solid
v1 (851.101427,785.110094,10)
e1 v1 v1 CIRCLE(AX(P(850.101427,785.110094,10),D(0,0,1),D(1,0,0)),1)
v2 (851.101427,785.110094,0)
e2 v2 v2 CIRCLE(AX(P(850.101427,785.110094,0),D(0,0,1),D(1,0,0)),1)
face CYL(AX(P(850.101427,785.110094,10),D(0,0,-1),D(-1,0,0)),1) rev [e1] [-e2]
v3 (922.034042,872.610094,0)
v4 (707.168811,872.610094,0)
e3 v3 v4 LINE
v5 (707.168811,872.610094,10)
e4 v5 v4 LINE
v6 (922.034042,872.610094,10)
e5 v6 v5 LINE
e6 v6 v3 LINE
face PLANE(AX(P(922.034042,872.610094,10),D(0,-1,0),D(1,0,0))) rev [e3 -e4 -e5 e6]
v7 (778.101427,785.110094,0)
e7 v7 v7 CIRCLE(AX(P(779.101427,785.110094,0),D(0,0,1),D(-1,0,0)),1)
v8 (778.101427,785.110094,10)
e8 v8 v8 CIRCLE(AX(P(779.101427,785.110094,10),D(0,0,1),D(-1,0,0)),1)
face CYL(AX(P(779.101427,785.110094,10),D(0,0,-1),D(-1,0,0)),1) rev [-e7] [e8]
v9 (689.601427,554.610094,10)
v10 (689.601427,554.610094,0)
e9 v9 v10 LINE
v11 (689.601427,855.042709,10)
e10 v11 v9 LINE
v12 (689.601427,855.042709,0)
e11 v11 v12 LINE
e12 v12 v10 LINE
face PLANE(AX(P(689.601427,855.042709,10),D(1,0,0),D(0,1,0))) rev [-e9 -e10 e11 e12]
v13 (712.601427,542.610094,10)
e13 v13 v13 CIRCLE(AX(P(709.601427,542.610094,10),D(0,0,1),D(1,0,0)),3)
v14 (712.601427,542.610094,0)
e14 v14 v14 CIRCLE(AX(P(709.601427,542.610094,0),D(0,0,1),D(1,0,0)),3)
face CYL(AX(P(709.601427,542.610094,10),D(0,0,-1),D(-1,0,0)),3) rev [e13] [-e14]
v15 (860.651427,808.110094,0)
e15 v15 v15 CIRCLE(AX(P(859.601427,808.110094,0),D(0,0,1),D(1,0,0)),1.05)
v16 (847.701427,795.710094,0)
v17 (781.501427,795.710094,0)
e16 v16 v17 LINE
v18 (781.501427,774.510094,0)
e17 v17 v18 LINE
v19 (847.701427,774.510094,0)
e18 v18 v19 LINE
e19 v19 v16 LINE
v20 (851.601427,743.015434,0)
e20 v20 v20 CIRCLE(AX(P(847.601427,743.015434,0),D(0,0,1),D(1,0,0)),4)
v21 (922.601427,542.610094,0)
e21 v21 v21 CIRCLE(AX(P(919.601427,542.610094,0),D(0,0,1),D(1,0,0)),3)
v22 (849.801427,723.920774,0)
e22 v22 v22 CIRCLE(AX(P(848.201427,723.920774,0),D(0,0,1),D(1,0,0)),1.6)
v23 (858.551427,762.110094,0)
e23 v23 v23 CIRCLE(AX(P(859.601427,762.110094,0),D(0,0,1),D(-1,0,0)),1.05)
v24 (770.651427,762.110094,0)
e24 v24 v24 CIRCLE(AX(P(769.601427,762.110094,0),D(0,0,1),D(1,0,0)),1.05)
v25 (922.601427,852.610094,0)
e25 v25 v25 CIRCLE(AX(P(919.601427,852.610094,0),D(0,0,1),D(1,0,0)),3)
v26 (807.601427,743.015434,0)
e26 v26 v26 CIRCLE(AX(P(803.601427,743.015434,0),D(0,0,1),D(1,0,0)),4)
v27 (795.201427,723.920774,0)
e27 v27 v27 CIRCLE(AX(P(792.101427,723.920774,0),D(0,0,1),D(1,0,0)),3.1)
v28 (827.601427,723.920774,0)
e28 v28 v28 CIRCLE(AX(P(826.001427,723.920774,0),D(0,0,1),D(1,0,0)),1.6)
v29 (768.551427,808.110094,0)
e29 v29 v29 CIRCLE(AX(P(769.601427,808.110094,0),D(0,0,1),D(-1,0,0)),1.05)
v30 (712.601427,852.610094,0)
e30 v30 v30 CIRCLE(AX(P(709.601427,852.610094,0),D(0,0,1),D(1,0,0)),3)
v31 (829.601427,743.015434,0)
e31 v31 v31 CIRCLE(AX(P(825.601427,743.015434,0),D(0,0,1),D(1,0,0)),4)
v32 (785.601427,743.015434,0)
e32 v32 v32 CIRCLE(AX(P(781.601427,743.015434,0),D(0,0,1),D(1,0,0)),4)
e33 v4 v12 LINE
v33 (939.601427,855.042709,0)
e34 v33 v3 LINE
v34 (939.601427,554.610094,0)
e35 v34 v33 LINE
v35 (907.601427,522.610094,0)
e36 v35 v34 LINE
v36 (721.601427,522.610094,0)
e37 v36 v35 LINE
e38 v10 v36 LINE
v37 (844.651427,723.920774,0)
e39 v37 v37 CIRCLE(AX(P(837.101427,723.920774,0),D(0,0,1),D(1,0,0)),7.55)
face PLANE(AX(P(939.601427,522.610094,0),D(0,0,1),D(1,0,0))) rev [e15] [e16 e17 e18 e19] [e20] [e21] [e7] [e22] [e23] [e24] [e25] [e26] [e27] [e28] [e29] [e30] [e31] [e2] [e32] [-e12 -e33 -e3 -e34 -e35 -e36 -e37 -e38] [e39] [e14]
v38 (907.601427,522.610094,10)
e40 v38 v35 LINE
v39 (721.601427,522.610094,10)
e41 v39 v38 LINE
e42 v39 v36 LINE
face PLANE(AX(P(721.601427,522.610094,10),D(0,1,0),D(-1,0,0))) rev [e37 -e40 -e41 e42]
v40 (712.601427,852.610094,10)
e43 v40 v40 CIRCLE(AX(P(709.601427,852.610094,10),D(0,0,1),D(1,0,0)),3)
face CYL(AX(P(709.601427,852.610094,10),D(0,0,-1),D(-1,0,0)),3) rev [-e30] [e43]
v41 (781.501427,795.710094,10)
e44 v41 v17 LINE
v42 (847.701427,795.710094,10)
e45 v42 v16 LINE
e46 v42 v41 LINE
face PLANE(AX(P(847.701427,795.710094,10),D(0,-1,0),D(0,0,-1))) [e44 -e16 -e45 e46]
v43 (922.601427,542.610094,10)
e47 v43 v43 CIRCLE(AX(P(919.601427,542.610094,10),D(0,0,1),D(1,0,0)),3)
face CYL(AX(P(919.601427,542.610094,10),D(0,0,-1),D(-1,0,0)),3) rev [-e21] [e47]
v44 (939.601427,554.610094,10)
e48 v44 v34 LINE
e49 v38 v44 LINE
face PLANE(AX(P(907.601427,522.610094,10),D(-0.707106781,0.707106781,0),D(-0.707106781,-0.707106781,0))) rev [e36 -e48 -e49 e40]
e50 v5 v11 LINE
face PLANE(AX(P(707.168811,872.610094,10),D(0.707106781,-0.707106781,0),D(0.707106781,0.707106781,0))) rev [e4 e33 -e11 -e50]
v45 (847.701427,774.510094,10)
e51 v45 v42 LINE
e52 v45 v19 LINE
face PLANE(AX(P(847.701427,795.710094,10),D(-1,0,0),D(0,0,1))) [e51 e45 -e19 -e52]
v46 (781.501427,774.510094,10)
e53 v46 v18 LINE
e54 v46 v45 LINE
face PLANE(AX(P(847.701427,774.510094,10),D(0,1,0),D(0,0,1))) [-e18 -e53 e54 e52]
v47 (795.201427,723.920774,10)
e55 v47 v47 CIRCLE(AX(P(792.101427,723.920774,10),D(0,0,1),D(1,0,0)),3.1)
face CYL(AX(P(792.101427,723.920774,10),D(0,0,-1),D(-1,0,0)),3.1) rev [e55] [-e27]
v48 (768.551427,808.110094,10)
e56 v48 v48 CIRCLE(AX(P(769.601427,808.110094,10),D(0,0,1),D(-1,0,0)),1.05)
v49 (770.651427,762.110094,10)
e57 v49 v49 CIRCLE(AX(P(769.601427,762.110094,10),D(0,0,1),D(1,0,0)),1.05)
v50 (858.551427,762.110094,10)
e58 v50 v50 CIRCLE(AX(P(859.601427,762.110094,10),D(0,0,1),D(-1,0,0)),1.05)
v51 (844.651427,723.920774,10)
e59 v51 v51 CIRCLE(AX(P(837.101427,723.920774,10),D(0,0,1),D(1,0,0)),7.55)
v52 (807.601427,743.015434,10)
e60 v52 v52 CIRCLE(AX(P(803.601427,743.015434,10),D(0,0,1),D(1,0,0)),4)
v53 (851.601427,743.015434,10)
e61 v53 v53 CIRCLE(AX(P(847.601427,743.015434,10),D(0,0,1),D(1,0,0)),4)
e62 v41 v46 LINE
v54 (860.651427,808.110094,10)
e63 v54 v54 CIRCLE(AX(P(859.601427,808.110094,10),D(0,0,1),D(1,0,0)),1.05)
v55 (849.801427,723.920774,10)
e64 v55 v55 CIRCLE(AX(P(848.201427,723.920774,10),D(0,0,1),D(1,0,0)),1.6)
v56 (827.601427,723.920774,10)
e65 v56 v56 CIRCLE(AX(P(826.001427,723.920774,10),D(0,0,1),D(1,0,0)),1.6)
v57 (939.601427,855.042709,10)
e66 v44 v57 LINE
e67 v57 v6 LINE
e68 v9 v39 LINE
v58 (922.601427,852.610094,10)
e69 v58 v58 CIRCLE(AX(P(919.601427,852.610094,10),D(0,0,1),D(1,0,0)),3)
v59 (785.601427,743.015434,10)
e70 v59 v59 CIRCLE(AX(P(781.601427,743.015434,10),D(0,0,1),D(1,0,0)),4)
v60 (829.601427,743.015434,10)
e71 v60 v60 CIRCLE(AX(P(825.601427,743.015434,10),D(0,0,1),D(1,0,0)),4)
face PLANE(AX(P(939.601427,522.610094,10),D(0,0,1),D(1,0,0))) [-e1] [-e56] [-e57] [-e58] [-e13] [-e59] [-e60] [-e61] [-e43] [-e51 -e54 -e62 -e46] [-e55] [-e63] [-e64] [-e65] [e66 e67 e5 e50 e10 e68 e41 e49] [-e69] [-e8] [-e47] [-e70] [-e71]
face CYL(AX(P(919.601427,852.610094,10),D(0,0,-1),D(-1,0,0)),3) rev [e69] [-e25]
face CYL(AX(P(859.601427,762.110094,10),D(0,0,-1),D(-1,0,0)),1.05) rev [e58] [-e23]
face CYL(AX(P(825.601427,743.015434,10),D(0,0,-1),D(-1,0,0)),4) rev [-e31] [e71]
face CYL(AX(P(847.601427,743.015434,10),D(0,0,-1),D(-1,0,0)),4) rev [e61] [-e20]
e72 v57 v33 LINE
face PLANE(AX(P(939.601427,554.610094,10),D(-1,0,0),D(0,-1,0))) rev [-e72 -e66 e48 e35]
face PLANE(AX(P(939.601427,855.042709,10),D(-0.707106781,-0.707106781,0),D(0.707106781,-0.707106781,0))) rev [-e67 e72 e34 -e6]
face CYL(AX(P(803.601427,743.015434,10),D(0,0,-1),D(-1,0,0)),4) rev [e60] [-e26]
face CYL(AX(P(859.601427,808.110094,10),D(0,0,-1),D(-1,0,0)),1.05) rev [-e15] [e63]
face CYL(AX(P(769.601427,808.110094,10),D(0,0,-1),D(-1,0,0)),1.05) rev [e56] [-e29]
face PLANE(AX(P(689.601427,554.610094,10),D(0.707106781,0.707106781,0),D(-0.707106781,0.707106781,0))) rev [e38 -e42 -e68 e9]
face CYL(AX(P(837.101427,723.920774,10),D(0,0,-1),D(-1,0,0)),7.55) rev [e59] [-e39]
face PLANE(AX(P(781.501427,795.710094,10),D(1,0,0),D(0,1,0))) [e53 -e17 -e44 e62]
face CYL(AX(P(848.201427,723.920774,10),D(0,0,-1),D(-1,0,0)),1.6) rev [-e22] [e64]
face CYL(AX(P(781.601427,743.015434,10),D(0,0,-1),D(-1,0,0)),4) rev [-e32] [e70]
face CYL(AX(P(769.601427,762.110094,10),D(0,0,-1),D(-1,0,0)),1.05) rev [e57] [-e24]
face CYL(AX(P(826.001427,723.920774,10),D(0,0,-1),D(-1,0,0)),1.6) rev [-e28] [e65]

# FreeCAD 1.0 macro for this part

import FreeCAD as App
import Part
import Sketcher

V = App.Vector
Q = App.Units.Quantity


def add_polygon(sketch, points):
    """Adds a closed chain of lines whose ends are joined by coincident constraints."""
    first, n = sketch.GeometryCount, len(points)
    for a, b in zip(points, points[1:] + points[:1]):
        sketch.addGeometry(Part.LineSegment(App.Vector(*a, 0), App.Vector(*b, 0)), False)
    for i in range(n):
        sketch.addConstraint(Sketcher.Constraint("Coincident", first + i, 2, first + (i + 1) % n, 1))

doc = App.newDocument("Part")
body = doc.addObject("PartDesign::Body", "Body")

# Sketch on XY plane
sketch1 = body.newObject("Sketcher::SketchObject", "Sketch")
sketch1.AttachmentSupport = (doc.getObject("XY_Plane"), [""])
sketch1.MapMode = "FlatFace"
add_polygon(sketch1, [(907.6, 522.6), (939.6, 554.6), (939.6, 855), (922, 872.6), (707.2, 872.6), (689.6, 855), (689.6, 554.6), (721.6, 522.6)])  # lines 0-7
sketch1.addGeometry(Part.Circle(V(709.6, 542.6, 0), V(0, 0, 1), 3), False)  # 8
sketch1.addGeometry(Part.Circle(V(919.6, 542.6, 0), V(0, 0, 1), 3), False)  # 9
sketch1.addGeometry(Part.Circle(V(792.1, 723.9, 0), V(0, 0, 1), 3.1), False)  # 10
sketch1.addGeometry(Part.Circle(V(781.6, 743, 0), V(0, 0, 1), 4), False)  # 11
sketch1.addGeometry(Part.Circle(V(769.6, 762.1, 0), V(0, 0, 1), 1.1), False)  # 12
sketch1.addGeometry(Part.Circle(V(803.6, 743, 0), V(0, 0, 1), 4), False)  # 13
sketch1.addGeometry(Part.Circle(V(709.6, 852.6, 0), V(0, 0, 1), 3), False)  # 14
sketch1.addGeometry(Part.Circle(V(779.1, 785.1, 0), V(0, 0, 1), 1), False)  # 15
sketch1.addGeometry(Part.Circle(V(769.6, 808.1, 0), V(0, 0, 1), 1.1), False)  # 16
sketch1.addGeometry(Part.Circle(V(826, 723.9, 0), V(0, 0, 1), 1.6), False)  # 17
sketch1.addGeometry(Part.Circle(V(837.1, 723.9, 0), V(0, 0, 1), 7.5), False)  # 18
sketch1.addGeometry(Part.Circle(V(848.2, 723.9, 0), V(0, 0, 1), 1.6), False)  # 19
sketch1.addGeometry(Part.Circle(V(825.6, 743, 0), V(0, 0, 1), 4), False)  # 20
sketch1.addGeometry(Part.Circle(V(847.6, 743, 0), V(0, 0, 1), 4), False)  # 21
sketch1.addGeometry(Part.Circle(V(859.6, 762.1, 0), V(0, 0, 1), 1.1), False)  # 22
add_polygon(sketch1, [(847.7, 774.5), (781.5, 774.5), (781.5, 795.7), (847.7, 795.7)])  # lines 23-26
sketch1.addGeometry(Part.Circle(V(850.1, 785.1, 0), V(0, 0, 1), 1), False)  # 27
sketch1.addGeometry(Part.Circle(V(859.6, 808.1, 0), V(0, 0, 1), 1.1), False)  # 28
sketch1.addGeometry(Part.Circle(V(919.6, 852.6, 0), V(0, 0, 1), 3), False)  # 29
sketch1.addConstraint([
    Sketcher.Constraint("Vertical", 1),
    Sketcher.Constraint("Horizontal", 3),
    Sketcher.Constraint("Vertical", 5),
    Sketcher.Constraint("Horizontal", 7),
    Sketcher.Constraint("Horizontal", 23),
    Sketcher.Constraint("Vertical", 24),
    Sketcher.Constraint("Horizontal", 25),
    Sketcher.Constraint("Vertical", 26),
    Sketcher.Constraint("Equal", 8, 9),
    Sketcher.Constraint("Equal", 11, 13),
    Sketcher.Constraint("Equal", 9, 14),
    Sketcher.Constraint("Equal", 12, 16),
    Sketcher.Constraint("Equal", 17, 19),
    Sketcher.Constraint("Equal", 13, 20),
    Sketcher.Constraint("Equal", 20, 21),
    Sketcher.Constraint("Equal", 16, 22),
    Sketcher.Constraint("Equal", 15, 27),
    Sketcher.Constraint("Equal", 22, 28),
    Sketcher.Constraint("Equal", 14, 29),
    Sketcher.Constraint("Perpendicular", 0, 2),
    Sketcher.Constraint("Perpendicular", 2, 4),
    Sketcher.Constraint("Perpendicular", 4, 6),
    Sketcher.Constraint("Horizontal", 8, 3, 9, 3),
    Sketcher.Constraint("Horizontal", 11, 3, 13, 3),
    Sketcher.Constraint("Horizontal", 10, 3, 17, 3),
    Sketcher.Constraint("Horizontal", 17, 3, 18, 3),
    Sketcher.Constraint("Horizontal", 18, 3, 19, 3),
    Sketcher.Constraint("Horizontal", 13, 3, 20, 3),
    Sketcher.Constraint("Horizontal", 20, 3, 21, 3),
    Sketcher.Constraint("Horizontal", 12, 3, 22, 3),
    Sketcher.Constraint("Horizontal", 15, 3, 27, 3),
    Sketcher.Constraint("Horizontal", 16, 3, 28, 3),
    Sketcher.Constraint("Horizontal", 14, 3, 29, 3),
    Sketcher.Constraint("Horizontal", 1, 2, 4, 2),
    Sketcher.Constraint("Horizontal", 0, 2, 5, 2),
    Sketcher.Constraint("Vertical", 8, 3, 14, 3),
    Sketcher.Constraint("Vertical", 12, 3, 16, 3),
    Sketcher.Constraint("Vertical", 22, 3, 28, 3),
    Sketcher.Constraint("Vertical", 9, 3, 29, 3),
    Sketcher.Constraint("Equal", 2, 4),
    Sketcher.Constraint("Diameter", 8, Q("6 mm")),
    Sketcher.Constraint("Diameter", 11, Q("8 mm")),
    Sketcher.Constraint("Diameter", 15, Q("2 mm")),
    Sketcher.Constraint("Diameter", 10, Q("6.2 mm")),
    Sketcher.Constraint("Diameter", 12, Q("2.1 mm")),
    Sketcher.Constraint("Diameter", 17, Q("3.2 mm")),
    Sketcher.Constraint("Diameter", 18, Q("15.1 mm")),
    Sketcher.Constraint("DistanceX", 7, 1, 7, 2, Q("186 mm")),
    Sketcher.Constraint("DistanceX", 23, 2, 23, 1, Q("66.2 mm")),
    Sketcher.Constraint("DistanceY", 24, 1, 24, 2, Q("21.2 mm")),
    Sketcher.Constraint("DistanceX", 8, 3, 9, 3, Q("210 mm")),
    Sketcher.Constraint("DistanceX", 8, 3, 11, 3, Q("72 mm")),
    Sketcher.Constraint("DistanceX", 12, 3, 11, 3, Q("12 mm")),
    Sketcher.Constraint("DistanceX", 11, 3, 13, 3, Q("22 mm")),
    Sketcher.Constraint("DistanceY", 8, 3, 14, 3, Q("310 mm")),
    Sketcher.Constraint("DistanceY", 12, 3, 15, 3, Q("23 mm")),
    Sketcher.Constraint("DistanceX", 15, 3, 10, 3, Q("13 mm")),
    Sketcher.Constraint("DistanceY", 15, 3, 16, 3, Q("23 mm")),
    Sketcher.Constraint("DistanceX", 10, 3, 18, 3, Q("45 mm")),
    Sketcher.Constraint("DistanceX", 13, 3, 20, 3, Q("22 mm")),
    Sketcher.Constraint("DistanceX", 20, 3, 21, 3, Q("22 mm")),
    Sketcher.Constraint("DistanceX", 21, 3, 22, 3, Q("12 mm")),
    Sketcher.Constraint("DistanceX", 18, 3, 27, 3, Q("13 mm")),
    Sketcher.Constraint("DistanceX", 9, 3, 0, 2, Q("20 mm")),
    Sketcher.Constraint("DistanceY", 9, 3, 0, 2, Q("12 mm")),
    Sketcher.Constraint("DistanceY", 29, 3, 2, 2, Q("20 mm")),
    Sketcher.Constraint("DistanceX", 4, 2, 14, 3, Q("20 mm")),
    Sketcher.Constraint("DistanceX", 8, 3, 10, 3, Q("82.5 mm")),
    Sketcher.Constraint("DistanceY", 8, 3, 12, 3, Q("219.5 mm")),
    Sketcher.Constraint("DistanceX", 13, 3, 17, 3, Q("22.4 mm")),
    Sketcher.Constraint("DistanceX", 18, 3, 19, 3, Q("11.1 mm")),
    Sketcher.Constraint("DistanceX", 15, 3, 23, 2, Q("2.4 mm")),
    Sketcher.Constraint("DistanceY", 23, 2, 15, 3, Q("10.6 mm")),
    Sketcher.Constraint("DistanceX", 3, 2, 3, 1, Q("214.865231 mm")),
    Sketcher.Constraint("DistanceY", -1, 1, 1, 2, Q("855.042709 mm")),
    Sketcher.Constraint("DistanceX", -1, 1, 3, 2, Q("707.168811 mm")),
    Sketcher.Constraint("DistanceY", 8, 3, 10, 3, Q("181.31068 mm")),
    Sketcher.Constraint("DistanceY", 10, 3, 11, 3, Q("19.09466 mm")),
])
pad1 = body.newObject("PartDesign::Pad", "Pad")
pad1.Profile = sketch1
pad1.Length = 10

doc.recompute()
